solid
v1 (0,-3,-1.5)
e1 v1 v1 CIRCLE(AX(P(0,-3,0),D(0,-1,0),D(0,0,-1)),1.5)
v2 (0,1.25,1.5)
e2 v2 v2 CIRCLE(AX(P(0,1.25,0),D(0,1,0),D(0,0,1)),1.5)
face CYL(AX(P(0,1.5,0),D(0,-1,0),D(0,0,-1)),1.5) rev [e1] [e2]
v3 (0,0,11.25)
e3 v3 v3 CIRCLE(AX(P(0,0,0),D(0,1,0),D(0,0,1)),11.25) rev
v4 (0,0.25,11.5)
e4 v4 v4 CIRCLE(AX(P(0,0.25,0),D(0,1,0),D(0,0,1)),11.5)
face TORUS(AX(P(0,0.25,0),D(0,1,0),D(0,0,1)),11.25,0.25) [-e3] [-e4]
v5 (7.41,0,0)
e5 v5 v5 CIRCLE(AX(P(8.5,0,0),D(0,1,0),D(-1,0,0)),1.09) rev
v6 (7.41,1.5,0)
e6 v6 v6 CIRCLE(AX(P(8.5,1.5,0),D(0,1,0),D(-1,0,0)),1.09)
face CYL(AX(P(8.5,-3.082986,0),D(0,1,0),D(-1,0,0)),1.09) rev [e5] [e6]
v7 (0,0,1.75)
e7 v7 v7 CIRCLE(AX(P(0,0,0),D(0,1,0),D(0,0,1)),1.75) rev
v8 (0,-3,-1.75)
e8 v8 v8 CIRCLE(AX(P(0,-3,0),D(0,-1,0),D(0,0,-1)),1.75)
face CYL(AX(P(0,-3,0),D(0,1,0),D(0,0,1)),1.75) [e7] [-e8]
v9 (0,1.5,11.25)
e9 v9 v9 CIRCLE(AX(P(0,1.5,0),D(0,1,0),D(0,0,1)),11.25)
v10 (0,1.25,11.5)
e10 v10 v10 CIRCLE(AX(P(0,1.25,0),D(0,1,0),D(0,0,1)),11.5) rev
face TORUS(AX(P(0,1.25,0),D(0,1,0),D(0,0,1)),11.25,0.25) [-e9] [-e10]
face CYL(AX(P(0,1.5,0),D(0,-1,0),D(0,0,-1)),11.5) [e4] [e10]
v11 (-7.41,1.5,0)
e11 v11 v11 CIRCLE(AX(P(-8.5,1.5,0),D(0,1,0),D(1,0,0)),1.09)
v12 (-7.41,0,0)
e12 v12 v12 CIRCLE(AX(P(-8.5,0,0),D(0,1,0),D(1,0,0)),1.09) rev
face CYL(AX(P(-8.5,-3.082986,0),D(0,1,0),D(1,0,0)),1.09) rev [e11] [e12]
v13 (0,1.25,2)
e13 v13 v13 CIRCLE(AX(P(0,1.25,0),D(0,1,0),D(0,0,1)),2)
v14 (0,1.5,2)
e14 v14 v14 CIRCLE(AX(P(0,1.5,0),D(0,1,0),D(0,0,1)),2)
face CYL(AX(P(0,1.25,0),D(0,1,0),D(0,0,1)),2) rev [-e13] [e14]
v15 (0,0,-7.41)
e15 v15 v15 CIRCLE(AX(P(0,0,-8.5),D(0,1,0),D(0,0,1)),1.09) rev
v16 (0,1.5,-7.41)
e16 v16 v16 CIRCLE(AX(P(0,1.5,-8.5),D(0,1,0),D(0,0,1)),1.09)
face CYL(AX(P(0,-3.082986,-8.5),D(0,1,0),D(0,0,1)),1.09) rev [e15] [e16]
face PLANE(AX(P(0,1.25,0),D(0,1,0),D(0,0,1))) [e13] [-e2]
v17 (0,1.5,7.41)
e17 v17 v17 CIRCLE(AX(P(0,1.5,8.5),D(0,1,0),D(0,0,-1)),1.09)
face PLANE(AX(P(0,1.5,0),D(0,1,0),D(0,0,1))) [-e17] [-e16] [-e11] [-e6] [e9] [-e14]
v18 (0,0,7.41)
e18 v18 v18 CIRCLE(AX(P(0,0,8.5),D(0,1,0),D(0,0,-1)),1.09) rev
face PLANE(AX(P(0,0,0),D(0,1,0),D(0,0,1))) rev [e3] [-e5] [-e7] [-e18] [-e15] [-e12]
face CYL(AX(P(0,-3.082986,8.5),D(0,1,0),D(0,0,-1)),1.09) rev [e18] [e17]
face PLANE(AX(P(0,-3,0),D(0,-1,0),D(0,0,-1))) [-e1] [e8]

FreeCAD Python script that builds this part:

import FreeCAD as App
import Part
import Sketcher
from FreeCAD import Vector


def edges_at(feature, points):
    """Names of the edges that pass closest to the given points."""
    edges = feature.Shape.Edges
    near = lambda p: min(range(len(edges)), key=lambda i: edges[i].distToShape(Part.Vertex(*p))[0])
    return sorted({f"Edge{near(p) + 1}" for p in points})

doc = App.newDocument("Part")
body = doc.addObject("PartDesign::Body", "Body")

# Sketch on XZ plane
sketch1 = doc.addObject("Sketcher::SketchObject", "Sketch")
body.addObject(sketch1)
sketch1.AttachmentSupport = (doc.XZ_Plane, [""])
sketch1.MapMode = "FlatFace"
sketch1.addGeometry([
    Part.Circle(Vector(0, 0, 0), Vector(0, 0, 1), 11.5),
    Part.Circle(Vector(0, 0, 0), Vector(0, 0, 1), 1.5),
], False)
sketch1.addConstraint([
    Sketcher.Constraint("Coincident", 0, 3, -1, 1),
    Sketcher.Constraint("Coincident", 1, 3, -1, 1),
    Sketcher.Constraint("Diameter", 0, 23.0),
    Sketcher.Constraint("Diameter", 1, 3.0),
])
pad1 = doc.addObject("PartDesign::Pad", "Pad")
body.addObject(pad1)
pad1.Profile = sketch1
pad1.Length = 1.5
pad1.Reversed = True

# Sketch on XZ plane
sketch2 = doc.addObject("Sketcher::SketchObject", "Sketch001")
body.addObject(sketch2)
sketch2.AttachmentSupport = (doc.XZ_Plane, [""])
sketch2.MapMode = "FlatFace"
sketch2.AttachmentOffset = App.Placement(Vector(0, 0, -1.25), App.Rotation())
sketch2.addGeometry([
    Part.Circle(Vector(0, 0, 0), Vector(0, 0, 1), 2),
    Part.Circle(Vector(0, 0, 0), Vector(0, 0, 1), 1.5),
], False)
sketch2.addConstraint([
    Sketcher.Constraint("Coincident", 0, 3, -1, 1),
    Sketcher.Constraint("Coincident", 1, 3, -1, 1),
    Sketcher.Constraint("Diameter", 0, 4.0),
    Sketcher.Constraint("Diameter", 1, 3.0),
])
pocket1 = doc.addObject("PartDesign::Pocket", "Pocket")
body.addObject(pocket1)
pocket1.Profile = sketch2
pocket1.Length = 0.25

# Sketch on XZ plane
sketch3 = doc.addObject("Sketcher::SketchObject", "Sketch002")
body.addObject(sketch3)
sketch3.AttachmentSupport = (doc.XZ_Plane, [""])
sketch3.MapMode = "FlatFace"
sketch3.AttachmentOffset = App.Placement(Vector(0, 0, -1.5), App.Rotation())
sketch3.addGeometry(Part.Circle(Vector(0, -8.5, 0), Vector(0, 0, 1), 1.1), False)
sketch3.addConstraint([
    Sketcher.Constraint("PointOnObject", 0, 3, -2),
    Sketcher.Constraint("Diameter", 0, 2.18),
    Sketcher.Constraint("DistanceY", 0, 3, -1, 1, 8.5),
])
pocket2 = doc.addObject("PartDesign::Pocket", "Pocket001")
body.addObject(pocket2)
pocket2.Profile = sketch3
pocket2.Length = 1.5
pocket2.Reversed = True
doc.recompute()

polarpattern = doc.addObject("PartDesign::PolarPattern", "PolarPattern")
body.addObject(polarpattern)
polarpattern.Originals = [pocket2]
polarpattern.Axis = (doc.Y_Axis, [""])
polarpattern.Angle = 360
polarpattern.Occurrences = 4
body.Tip = polarpattern

# Sketch on XZ plane
sketch4 = doc.addObject("Sketcher::SketchObject", "Sketch003")
body.addObject(sketch4)
sketch4.AttachmentSupport = (doc.XZ_Plane, [""])
sketch4.MapMode = "FlatFace"
sketch4.AttachmentOffset = App.Placement(Vector(0, 0, 3), App.Rotation())
sketch4.addGeometry([
    Part.Circle(Vector(0, 0, 0), Vector(0, 0, 1), 1.8),
    Part.Circle(Vector(0, 0, 0), Vector(0, 0, 1), 1.5),
], False)
sketch4.addConstraint([
    Sketcher.Constraint("Coincident", 0, 3, -1, 1),
    Sketcher.Constraint("Coincident", 1, 3, -1, 1),
    Sketcher.Constraint("Diameter", 1, 3.0),
    Sketcher.Constraint("Diameter", 0, 3.5),
])
pad2 = doc.addObject("PartDesign::Pad", "Pad001")
body.addObject(pad2)
pad2.Profile = sketch4
pad2.Length = 3
pad2.Reversed = True
doc.recompute()

fillet = doc.addObject("PartDesign::Fillet", "Fillet")
body.addObject(fillet)
fillet.Base = (pad2, edges_at(pad2, [(0, 0, -11.5), (0, 1.5, -11.5)]))
fillet.Radius = 0.25

doc.recompute()
